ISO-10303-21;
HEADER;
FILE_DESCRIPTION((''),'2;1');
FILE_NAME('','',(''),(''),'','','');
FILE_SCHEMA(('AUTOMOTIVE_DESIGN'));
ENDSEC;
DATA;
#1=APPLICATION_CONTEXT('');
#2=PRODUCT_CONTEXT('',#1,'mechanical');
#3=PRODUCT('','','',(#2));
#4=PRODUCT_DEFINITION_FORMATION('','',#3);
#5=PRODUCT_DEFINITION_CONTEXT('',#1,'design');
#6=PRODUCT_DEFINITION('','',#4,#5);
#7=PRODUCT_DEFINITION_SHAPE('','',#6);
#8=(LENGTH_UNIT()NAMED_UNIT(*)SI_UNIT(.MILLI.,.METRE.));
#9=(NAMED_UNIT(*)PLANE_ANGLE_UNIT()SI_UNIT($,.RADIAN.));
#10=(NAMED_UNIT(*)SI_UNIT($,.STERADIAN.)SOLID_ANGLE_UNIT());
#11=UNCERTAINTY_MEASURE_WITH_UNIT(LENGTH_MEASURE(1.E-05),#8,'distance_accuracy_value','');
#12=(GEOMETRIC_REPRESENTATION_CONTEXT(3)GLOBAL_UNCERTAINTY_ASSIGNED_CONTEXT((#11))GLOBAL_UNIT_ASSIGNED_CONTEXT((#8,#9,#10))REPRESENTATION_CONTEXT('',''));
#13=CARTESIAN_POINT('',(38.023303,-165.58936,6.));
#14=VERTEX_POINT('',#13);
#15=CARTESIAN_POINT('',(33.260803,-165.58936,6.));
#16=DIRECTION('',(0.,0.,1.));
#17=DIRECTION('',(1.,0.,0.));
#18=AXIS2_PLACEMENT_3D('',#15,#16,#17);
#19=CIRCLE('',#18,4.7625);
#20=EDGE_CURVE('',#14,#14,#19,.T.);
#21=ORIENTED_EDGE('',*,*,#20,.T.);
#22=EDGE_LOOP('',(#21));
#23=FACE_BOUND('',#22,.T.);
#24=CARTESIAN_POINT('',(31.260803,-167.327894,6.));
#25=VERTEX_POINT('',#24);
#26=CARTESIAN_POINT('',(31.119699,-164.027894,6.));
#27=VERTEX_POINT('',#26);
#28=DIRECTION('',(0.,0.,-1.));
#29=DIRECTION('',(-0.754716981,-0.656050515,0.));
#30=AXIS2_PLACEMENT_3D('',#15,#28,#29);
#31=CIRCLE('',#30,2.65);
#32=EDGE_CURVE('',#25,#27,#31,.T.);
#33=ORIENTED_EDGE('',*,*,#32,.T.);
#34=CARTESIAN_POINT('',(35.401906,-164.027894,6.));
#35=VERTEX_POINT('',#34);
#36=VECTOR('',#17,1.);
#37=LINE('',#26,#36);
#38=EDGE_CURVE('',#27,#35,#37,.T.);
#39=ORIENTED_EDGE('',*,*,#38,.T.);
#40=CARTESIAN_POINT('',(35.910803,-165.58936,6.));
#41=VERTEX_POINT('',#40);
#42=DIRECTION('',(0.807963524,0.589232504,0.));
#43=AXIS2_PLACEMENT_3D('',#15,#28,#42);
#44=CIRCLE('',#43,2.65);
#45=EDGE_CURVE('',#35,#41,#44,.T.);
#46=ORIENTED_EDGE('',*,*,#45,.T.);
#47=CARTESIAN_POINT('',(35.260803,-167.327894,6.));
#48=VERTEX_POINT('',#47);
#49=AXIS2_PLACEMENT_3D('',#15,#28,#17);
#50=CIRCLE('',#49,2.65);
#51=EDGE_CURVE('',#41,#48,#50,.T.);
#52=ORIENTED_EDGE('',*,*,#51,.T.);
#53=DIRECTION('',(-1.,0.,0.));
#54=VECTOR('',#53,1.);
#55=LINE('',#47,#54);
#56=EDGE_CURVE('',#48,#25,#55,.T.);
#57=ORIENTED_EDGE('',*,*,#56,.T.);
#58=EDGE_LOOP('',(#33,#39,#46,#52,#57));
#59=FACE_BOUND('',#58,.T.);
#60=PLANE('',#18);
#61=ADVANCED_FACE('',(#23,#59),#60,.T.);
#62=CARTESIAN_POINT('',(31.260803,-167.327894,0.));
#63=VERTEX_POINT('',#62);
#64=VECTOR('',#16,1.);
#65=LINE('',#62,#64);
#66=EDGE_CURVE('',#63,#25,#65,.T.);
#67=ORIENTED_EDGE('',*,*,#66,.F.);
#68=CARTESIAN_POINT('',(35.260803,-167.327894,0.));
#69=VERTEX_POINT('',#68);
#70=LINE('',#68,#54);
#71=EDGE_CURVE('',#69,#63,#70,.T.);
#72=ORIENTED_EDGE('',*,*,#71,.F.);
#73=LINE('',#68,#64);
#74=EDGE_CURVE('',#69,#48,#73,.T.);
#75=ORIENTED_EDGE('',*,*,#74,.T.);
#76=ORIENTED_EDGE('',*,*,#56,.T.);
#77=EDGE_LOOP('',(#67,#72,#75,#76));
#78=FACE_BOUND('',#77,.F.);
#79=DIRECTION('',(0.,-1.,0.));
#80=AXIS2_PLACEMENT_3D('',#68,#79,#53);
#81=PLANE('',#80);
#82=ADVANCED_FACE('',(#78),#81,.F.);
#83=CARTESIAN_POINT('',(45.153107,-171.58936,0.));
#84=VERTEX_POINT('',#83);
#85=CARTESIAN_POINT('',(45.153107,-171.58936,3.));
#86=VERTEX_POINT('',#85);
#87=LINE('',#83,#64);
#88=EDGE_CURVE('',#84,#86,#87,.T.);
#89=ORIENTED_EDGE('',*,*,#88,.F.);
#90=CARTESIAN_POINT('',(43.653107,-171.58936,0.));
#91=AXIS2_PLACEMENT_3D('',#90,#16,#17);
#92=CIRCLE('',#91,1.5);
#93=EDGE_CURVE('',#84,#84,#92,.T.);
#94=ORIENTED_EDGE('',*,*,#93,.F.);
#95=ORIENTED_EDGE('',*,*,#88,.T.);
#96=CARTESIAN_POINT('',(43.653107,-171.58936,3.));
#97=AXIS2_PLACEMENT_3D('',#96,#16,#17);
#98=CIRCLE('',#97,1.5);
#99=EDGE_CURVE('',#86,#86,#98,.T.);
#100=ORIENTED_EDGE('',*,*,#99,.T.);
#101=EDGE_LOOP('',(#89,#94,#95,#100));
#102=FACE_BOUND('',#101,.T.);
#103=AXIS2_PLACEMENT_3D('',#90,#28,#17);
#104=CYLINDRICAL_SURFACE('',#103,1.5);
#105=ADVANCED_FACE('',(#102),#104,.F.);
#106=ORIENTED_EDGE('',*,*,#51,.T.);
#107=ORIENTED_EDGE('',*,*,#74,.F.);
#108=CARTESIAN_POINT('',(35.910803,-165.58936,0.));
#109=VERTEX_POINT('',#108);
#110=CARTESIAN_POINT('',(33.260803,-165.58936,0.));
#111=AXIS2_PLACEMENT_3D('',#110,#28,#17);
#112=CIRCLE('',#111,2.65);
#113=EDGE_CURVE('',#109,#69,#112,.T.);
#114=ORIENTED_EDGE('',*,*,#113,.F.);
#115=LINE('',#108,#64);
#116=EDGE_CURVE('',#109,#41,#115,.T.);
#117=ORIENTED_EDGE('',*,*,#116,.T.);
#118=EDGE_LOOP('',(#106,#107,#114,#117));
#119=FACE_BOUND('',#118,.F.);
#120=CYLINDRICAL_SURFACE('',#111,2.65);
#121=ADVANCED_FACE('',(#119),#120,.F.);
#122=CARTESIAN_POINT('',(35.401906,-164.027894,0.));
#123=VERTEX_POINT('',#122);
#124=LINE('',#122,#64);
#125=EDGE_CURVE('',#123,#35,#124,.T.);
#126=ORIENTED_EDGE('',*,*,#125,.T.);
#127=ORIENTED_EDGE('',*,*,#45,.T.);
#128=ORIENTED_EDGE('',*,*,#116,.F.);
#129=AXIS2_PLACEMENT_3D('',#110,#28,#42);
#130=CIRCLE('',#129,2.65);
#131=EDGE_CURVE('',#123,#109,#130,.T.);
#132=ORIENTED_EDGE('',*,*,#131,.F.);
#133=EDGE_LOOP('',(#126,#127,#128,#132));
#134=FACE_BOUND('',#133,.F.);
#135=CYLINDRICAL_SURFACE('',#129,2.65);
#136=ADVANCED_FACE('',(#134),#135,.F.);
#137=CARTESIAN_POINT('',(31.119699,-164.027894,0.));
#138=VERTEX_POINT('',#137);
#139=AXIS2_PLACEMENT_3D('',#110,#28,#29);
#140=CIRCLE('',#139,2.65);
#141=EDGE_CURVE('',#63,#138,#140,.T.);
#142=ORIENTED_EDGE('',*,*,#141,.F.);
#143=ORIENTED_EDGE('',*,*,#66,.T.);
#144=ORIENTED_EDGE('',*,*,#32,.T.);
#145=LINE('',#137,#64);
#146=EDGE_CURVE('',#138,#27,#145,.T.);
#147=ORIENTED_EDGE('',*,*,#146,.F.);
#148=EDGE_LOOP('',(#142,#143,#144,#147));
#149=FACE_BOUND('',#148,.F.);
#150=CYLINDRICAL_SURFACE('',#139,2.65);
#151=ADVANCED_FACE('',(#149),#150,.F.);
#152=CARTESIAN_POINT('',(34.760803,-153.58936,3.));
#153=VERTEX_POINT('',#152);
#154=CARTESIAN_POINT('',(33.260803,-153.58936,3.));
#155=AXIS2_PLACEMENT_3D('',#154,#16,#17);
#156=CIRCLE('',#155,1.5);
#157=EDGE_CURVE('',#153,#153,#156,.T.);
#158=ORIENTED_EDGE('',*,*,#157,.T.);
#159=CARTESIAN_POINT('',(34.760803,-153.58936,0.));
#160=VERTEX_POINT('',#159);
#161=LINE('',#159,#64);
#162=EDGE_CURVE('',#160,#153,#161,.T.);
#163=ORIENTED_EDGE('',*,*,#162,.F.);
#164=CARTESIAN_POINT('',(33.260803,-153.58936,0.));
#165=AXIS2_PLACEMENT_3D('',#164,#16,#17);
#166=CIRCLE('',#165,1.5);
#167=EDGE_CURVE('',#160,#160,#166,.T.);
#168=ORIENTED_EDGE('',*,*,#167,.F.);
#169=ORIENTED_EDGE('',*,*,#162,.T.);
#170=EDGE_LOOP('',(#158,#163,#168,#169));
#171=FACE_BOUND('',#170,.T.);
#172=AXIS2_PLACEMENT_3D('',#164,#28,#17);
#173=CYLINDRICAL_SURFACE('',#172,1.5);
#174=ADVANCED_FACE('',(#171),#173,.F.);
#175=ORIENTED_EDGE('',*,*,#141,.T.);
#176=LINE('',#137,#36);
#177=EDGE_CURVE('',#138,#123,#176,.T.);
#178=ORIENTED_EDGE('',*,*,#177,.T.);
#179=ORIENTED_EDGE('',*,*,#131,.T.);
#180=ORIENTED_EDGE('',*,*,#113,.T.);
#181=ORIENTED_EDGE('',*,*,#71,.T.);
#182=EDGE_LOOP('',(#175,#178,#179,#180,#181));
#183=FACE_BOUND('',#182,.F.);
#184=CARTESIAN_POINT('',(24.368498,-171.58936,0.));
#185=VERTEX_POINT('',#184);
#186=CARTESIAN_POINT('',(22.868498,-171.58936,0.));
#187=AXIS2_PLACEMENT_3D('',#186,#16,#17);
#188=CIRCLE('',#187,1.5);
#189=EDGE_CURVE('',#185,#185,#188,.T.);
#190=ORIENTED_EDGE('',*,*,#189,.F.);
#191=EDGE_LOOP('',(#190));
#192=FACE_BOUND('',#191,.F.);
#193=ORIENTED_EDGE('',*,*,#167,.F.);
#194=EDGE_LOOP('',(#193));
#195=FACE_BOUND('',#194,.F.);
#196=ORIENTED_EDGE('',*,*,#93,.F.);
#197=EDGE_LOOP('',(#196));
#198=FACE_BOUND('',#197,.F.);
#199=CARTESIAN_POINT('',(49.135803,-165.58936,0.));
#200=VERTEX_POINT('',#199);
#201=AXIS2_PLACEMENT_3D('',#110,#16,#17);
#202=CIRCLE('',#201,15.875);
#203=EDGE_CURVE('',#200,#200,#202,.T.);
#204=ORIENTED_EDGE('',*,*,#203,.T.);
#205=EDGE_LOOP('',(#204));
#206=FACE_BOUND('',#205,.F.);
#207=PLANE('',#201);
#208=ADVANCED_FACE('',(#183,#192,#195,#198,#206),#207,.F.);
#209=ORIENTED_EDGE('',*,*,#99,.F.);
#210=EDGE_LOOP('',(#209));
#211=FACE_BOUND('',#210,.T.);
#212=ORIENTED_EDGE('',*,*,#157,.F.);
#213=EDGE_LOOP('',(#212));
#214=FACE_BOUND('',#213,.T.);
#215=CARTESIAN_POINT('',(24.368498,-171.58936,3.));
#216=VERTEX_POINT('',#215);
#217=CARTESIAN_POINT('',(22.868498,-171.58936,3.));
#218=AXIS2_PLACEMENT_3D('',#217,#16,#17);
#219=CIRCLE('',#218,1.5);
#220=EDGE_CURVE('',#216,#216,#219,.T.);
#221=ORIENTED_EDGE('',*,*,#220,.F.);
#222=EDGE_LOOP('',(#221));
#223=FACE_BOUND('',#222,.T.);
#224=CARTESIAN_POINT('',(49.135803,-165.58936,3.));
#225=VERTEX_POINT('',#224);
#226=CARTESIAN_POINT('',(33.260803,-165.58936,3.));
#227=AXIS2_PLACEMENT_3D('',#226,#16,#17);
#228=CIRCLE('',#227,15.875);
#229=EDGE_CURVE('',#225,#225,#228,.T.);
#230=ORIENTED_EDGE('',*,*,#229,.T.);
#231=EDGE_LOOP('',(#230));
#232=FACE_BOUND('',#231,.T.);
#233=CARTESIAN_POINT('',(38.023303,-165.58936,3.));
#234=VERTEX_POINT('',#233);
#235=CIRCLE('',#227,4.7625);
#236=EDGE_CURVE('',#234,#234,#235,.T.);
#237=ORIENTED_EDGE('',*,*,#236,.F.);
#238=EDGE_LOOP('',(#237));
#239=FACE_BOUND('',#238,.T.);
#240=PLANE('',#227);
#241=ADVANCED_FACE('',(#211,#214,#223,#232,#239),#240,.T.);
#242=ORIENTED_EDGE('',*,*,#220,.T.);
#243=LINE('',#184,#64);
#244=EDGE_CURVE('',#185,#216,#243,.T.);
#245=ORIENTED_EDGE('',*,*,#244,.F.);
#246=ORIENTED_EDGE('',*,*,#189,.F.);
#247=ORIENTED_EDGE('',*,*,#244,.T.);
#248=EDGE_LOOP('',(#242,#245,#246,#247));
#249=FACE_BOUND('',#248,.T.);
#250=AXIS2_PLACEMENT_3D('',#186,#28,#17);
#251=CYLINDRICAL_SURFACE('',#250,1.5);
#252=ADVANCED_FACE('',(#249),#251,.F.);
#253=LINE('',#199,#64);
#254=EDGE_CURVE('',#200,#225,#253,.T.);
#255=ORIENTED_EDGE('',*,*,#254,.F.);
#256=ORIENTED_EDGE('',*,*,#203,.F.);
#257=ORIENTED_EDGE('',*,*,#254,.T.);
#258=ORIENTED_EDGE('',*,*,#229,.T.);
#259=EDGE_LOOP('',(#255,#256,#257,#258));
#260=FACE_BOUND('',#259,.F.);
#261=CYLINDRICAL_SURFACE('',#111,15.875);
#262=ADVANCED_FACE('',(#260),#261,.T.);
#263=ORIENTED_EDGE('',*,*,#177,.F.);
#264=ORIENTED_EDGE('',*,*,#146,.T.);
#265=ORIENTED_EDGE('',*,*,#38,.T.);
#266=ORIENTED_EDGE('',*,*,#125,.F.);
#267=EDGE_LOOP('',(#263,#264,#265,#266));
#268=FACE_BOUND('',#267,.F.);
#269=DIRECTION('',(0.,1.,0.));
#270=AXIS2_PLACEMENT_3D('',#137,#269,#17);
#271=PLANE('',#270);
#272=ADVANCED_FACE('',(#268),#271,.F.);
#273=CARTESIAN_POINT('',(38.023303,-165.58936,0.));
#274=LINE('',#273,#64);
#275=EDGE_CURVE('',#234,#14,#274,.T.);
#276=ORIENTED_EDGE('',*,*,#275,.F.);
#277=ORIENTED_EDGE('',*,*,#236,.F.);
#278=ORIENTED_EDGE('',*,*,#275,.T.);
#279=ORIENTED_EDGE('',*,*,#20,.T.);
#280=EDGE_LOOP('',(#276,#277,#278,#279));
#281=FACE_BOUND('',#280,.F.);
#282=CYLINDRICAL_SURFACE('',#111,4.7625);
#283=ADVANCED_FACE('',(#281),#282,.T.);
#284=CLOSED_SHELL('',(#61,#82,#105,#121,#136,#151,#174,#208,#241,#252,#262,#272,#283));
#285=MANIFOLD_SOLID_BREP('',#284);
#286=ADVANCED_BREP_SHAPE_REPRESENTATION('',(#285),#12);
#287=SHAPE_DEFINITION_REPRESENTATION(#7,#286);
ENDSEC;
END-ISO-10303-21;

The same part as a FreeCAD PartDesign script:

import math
import FreeCAD as App
import Part
import Sketcher

V = App.Vector

doc = App.newDocument("Part")
body = doc.addObject("PartDesign::Body", "Body")

# Sketch on XY plane
sketch1 = doc.addObject("Sketcher::SketchObject", "Sketch")
body.addObject(sketch1)
sketch1.AttachmentSupport = (doc.XY_Plane, [""])
sketch1.MapMode = "FlatFace"
sketch1.addGeometry(Part.Circle(V(33.260803, -165.58936, 0), V(0, 0, 1), 4.7625), False)
sketch1.addGeometry(Part.ArcOfCircle(Part.Circle(V(33.260803, -165.58936, 0), V(0, 0, 1), 2.65), math.radians(-40.999354), math.radians(0)), False)
sketch1.addGeometry(Part.LineSegment(V(35.260803, -167.327894, 0), V(31.260803, -167.327894, 0)), False)
sketch1.addGeometry(Part.ArcOfCircle(Part.Circle(V(33.260803, -165.58936, 0), V(0, 0, 1), 2.65), math.radians(143.897437), math.radians(220.999354)), False)
sketch1.addGeometry(Part.LineSegment(V(31.119699, -164.027894, 0), V(35.401906, -164.027894, 0)), False)
sketch1.addGeometry(Part.ArcOfCircle(Part.Circle(V(33.260803, -165.58936, 0), V(0, 0, 1), 2.65), math.radians(0), math.radians(36.102563)), False)
sketch1.addConstraint(Sketcher.Constraint("Coincident", 1, 1, 2, 1))
sketch1.addConstraint(Sketcher.Constraint("Coincident", 2, 2, 3, 2))
sketch1.addConstraint(Sketcher.Constraint("Coincident", 3, 1, 4, 1))
sketch1.addConstraint(Sketcher.Constraint("Coincident", 4, 2, 5, 2))
sketch1.addConstraint(Sketcher.Constraint("Tangent", 5, 1, 1, 2))
sketch1.addConstraint(Sketcher.Constraint("Horizontal", 2))
sketch1.addConstraint(Sketcher.Constraint("Horizontal", 4))
sketch1.addConstraint(Sketcher.Constraint("Coincident", 1, 3, 0, 3))
sketch1.addConstraint(Sketcher.Constraint("Coincident", 3, 3, 0, 3))
sketch1.addConstraint(Sketcher.Constraint("Equal", 1, 3))
sketch1.addConstraint(Sketcher.Constraint("Equal", 3, 5))
sketch1.addConstraint(Sketcher.Constraint("Horizontal", 3, 3, 5, 1))
sketch1.addConstraint(Sketcher.Constraint("DistanceX", 2, 2, 2, 1, 4.0))
sketch1.addConstraint(Sketcher.Constraint("Radius", 1, 2.65))
sketch1.addConstraint(Sketcher.Constraint("Diameter", 0, 9.525))
sketch1.addConstraint(Sketcher.Constraint("DistanceY", 2, 2, 3, 1, 3.3))
sketch1.addConstraint(Sketcher.Constraint("DistanceX", -1, 1, 3, 1, 31.119699))
sketch1.addConstraint(Sketcher.Constraint("DistanceY", 0, 3, -1, 1, 165.58936))
pad1 = doc.addObject("PartDesign::Pad", "Pad")
body.addObject(pad1)
pad1.Profile = sketch1
pad1.Length = 6

# Sketch on XY plane
sketch2 = doc.addObject("Sketcher::SketchObject", "Sketch001")
body.addObject(sketch2)
sketch2.AttachmentSupport = (doc.XY_Plane, [""])
sketch2.MapMode = "FlatFace"
sketch2.addGeometry(Part.Circle(V(33.260803, -165.58936, 0), V(0, 0, 1), 15.875), False)
sketch2.addGeometry(Part.Circle(V(22.868498, -171.58936, 0), V(0, 0, 1), 1.5), False)
sketch2.addGeometry(Part.Circle(V(43.653107, -171.58936, 0), V(0, 0, 1), 1.5), False)
sketch2.addGeometry(Part.Circle(V(33.260803, -165.58936, 0), V(0, 0, 1), 4.7625), False)
sketch2.addGeometry(Part.Circle(V(33.260803, -153.58936, 0), V(0, 0, 1), 1.5), False)
sketch2.addConstraint(Sketcher.Constraint("Coincident", 3, 3, 0, 3))
sketch2.addConstraint(Sketcher.Constraint("Equal", 1, 2))
sketch2.addConstraint(Sketcher.Constraint("Equal", 2, 4))
sketch2.addConstraint(Sketcher.Constraint("Horizontal", 1, 3, 2, 3))
sketch2.addConstraint(Sketcher.Constraint("Vertical", 3, 3, 4, 3))
sketch2.addConstraint(Sketcher.Constraint("Diameter", 1, 3.0))
sketch2.addConstraint(Sketcher.Constraint("Diameter", 0, 31.75))
sketch2.addConstraint(Sketcher.Constraint("Diameter", 3, 9.525))
sketch2.addConstraint(Sketcher.Constraint("DistanceY", 1, 3, 0, 3, 6.0))
sketch2.addConstraint(Sketcher.Constraint("DistanceY", 0, 3, 4, 3, 12.0))
sketch2.addConstraint(Sketcher.Constraint("DistanceY", 0, 3, -1, 1, 165.58936))
sketch2.addConstraint(Sketcher.Constraint("DistanceX", 1, 3, 2, 3, 20.78461))
sketch2.addConstraint(Sketcher.Constraint("DistanceX", -1, 1, 0, 3, 33.260803))
sketch2.addConstraint(Sketcher.Constraint("DistanceX", -1, 1, 1, 3, 22.868498))
pad2 = doc.addObject("PartDesign::Pad", "Pad001")
body.addObject(pad2)
pad2.Profile = sketch2
pad2.Length = 3

doc.recompute()
